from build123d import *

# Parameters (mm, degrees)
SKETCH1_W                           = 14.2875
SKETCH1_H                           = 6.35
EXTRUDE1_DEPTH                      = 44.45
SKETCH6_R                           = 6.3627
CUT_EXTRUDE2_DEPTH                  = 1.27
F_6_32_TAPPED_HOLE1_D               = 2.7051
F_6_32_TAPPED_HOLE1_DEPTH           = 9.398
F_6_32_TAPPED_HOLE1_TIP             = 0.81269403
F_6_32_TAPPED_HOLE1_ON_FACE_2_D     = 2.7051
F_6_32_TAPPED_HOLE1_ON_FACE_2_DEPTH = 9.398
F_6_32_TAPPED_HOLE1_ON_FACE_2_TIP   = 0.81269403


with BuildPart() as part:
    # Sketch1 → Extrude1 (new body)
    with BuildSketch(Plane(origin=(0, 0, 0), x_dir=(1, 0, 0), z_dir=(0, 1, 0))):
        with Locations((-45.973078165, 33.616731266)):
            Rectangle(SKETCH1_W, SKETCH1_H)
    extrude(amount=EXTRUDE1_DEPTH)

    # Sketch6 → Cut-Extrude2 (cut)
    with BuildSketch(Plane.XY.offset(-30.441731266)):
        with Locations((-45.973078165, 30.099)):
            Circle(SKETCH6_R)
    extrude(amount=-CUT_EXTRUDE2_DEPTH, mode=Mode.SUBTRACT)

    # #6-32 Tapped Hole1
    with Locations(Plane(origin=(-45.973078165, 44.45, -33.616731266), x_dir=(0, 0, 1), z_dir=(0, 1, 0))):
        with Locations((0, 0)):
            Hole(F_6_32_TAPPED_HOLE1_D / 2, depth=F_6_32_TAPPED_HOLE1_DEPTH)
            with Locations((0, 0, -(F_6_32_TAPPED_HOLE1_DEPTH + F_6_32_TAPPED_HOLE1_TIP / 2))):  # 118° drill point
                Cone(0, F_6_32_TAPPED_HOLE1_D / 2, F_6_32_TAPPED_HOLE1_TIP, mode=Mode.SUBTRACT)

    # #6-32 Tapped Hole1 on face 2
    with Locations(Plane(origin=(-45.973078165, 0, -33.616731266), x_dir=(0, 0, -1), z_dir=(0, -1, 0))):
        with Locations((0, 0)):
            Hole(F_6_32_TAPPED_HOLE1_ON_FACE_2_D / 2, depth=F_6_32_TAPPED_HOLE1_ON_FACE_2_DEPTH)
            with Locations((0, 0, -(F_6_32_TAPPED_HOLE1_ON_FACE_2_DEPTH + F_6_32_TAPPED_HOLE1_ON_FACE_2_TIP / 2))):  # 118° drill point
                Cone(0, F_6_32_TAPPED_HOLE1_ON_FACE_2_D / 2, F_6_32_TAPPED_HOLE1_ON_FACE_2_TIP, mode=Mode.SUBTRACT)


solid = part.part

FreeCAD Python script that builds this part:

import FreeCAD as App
import Part
import Sketcher
from FreeCAD import Vector
Q = App.Units.Quantity


def add_polygon(sketch, points):
    """Adds a closed chain of lines whose ends are joined by coincident constraints."""
    first, n = sketch.GeometryCount, len(points)
    for a, b in zip(points, points[1:] + points[:1]):
        sketch.addGeometry(Part.LineSegment(App.Vector(*a, 0), App.Vector(*b, 0)), False)
    for i in range(n):
        sketch.addConstraint(Sketcher.Constraint("Coincident", first + i, 2, first + (i + 1) % n, 1))

doc = App.newDocument("Part")
params = doc.addObject("Spreadsheet::Sheet", "Params")
for row, (alias, value) in enumerate([
    ("sketch1_height", "0.25 in"),
    ("sketch1_width", "0.5625 in"),
    ("pad1_length", "1.75 in"),
    ("sketch2_diameter", "0.501 in"),
    ("pocket1_length", "0.05 in"),
    ("hole_diameter", "0.1065 in"),
    ("hole_depth", "0.37 in"),
    ("hole2_diameter", "0.1065 in"),
    ("hole2_depth", "0.37 in"),
], start=1):
    params.set(f"A{row}", alias)
    params.set(f"B{row}", "=" + value)
    params.setAlias(f"B{row}", alias)

body = doc.addObject("PartDesign::Body", "Body")

sketch1 = doc.addObject("Sketcher::SketchObject", "Sketch")
body.addObject(sketch1)
sketch1.AttachmentSupport = (doc.XZ_Plane, [""])
sketch1.MapMode = "FlatFace"
add_polygon(sketch1, [(-53, -37), (-53, -30), (-39, -30), (-39, -37)])
sketch1.addConstraint(Sketcher.Constraint("Vertical", 0))
sketch1.addConstraint(Sketcher.Constraint("Horizontal", 1))
sketch1.addConstraint(Sketcher.Constraint("Vertical", 2))
sketch1.addConstraint(Sketcher.Constraint("Horizontal", 3))
sketch1.addConstraint(Sketcher.Constraint("DistanceY", 0, 1, 0, 2, Q("0.25 in")))
sketch1.addConstraint(Sketcher.Constraint("DistanceX", 1, 1, 1, 2, Q("0.5625 in")))
sketch1.addConstraint(Sketcher.Constraint("DistanceX", 0, 2, -1, 1, 53.116828))
sketch1.addConstraint(Sketcher.Constraint("DistanceY", 0, 2, -1, 1, 30.441731))
sketch1.setExpression("Constraints[8]", "Params.sketch1_height")
sketch1.setExpression("Constraints[9]", "Params.sketch1_width")
pad1 = doc.addObject("PartDesign::Pad", "Pad")
body.addObject(pad1)
pad1.Profile = sketch1
pad1.setExpression("Length", "Params.pad1_length")
pad1.Reversed = True

sketch2 = doc.addObject("Sketcher::SketchObject", "Sketch001")
body.addObject(sketch2)
sketch2.AttachmentSupport = (doc.XY_Plane, [""])
sketch2.MapMode = "FlatFace"
sketch2.AttachmentOffset = App.Placement(Vector(0, 0, -30.441731), App.Rotation())
sketch2.addGeometry(Part.Circle(Vector(-46, 30, 0), Vector(0, 0, 1), 6), False)
sketch2.addConstraint(Sketcher.Constraint("Diameter", 0, Q("0.501 in")))
sketch2.addConstraint(Sketcher.Constraint("DistanceY", -1, 1, 0, 3, Q("1.185 in")))
sketch2.addConstraint(Sketcher.Constraint("DistanceX", 0, 3, -1, 1, 45.973078))
sketch2.setExpression("Constraints[0]", "Params.sketch2_diameter")
pocket1 = doc.addObject("PartDesign::Pocket", "Pocket")
body.addObject(pocket1)
pocket1.Profile = sketch2
pocket1.setExpression("Length", "Params.pocket1_length")

sketch3 = doc.addObject("Sketcher::SketchObject", "Sketch002")
body.addObject(sketch3)
sketch3.AttachmentSupport = (doc.XZ_Plane, [""])
sketch3.MapMode = "FlatFace"
sketch3.AttachmentOffset = App.Placement(Vector(0, 0, -1.75 * 25.4), App.Rotation())
sketch3.addGeometry(Part.Circle(Vector(-46, -33.6, 0), Vector(0, 0, 1), 1.4), False)
sketch3.addConstraint(Sketcher.Constraint("Diameter", 0, Q("0.1065 in")))
sketch3.addConstraint(Sketcher.Constraint("DistanceX", 0, 3, -1, 1, 45.973078))
sketch3.addConstraint(Sketcher.Constraint("DistanceY", 0, 3, -1, 1, 33.616731))
doc.recompute()
hole = doc.addObject("PartDesign::Hole", "Hole")
body.addObject(hole)
hole.Profile = sketch3
hole.ThreadType = "None"
hole.setExpression("Diameter", "Params.hole_diameter")
hole.DepthType = "Dimension"
hole.setExpression("Depth", "Params.hole_depth")
hole.DrillPoint = "Angled"
hole.DrillPointAngle = 118
hole.Reversed = True

sketch4 = doc.addObject("Sketcher::SketchObject", "Sketch003")
body.addObject(sketch4)
sketch4.AttachmentSupport = (doc.XZ_Plane, [""])
sketch4.MapMode = "FlatFace"
sketch4.addGeometry(Part.Circle(Vector(-46, -33.6, 0), Vector(0, 0, 1), 1.4), False)
sketch4.addConstraint(Sketcher.Constraint("Diameter", 0, Q("0.1065 in")))
sketch4.addConstraint(Sketcher.Constraint("DistanceX", 0, 3, -1, 1, 45.973078))
sketch4.addConstraint(Sketcher.Constraint("DistanceY", 0, 3, -1, 1, 33.616731))
doc.recompute()
hole2 = doc.addObject("PartDesign::Hole", "Hole001")
body.addObject(hole2)
hole2.Profile = sketch4
hole2.ThreadType = "None"
hole2.setExpression("Diameter", "Params.hole2_diameter")
hole2.DepthType = "Dimension"
hole2.setExpression("Depth", "Params.hole2_depth")
hole2.DrillPoint = "Angled"
hole2.DrillPointAngle = 118

doc.recompute()
